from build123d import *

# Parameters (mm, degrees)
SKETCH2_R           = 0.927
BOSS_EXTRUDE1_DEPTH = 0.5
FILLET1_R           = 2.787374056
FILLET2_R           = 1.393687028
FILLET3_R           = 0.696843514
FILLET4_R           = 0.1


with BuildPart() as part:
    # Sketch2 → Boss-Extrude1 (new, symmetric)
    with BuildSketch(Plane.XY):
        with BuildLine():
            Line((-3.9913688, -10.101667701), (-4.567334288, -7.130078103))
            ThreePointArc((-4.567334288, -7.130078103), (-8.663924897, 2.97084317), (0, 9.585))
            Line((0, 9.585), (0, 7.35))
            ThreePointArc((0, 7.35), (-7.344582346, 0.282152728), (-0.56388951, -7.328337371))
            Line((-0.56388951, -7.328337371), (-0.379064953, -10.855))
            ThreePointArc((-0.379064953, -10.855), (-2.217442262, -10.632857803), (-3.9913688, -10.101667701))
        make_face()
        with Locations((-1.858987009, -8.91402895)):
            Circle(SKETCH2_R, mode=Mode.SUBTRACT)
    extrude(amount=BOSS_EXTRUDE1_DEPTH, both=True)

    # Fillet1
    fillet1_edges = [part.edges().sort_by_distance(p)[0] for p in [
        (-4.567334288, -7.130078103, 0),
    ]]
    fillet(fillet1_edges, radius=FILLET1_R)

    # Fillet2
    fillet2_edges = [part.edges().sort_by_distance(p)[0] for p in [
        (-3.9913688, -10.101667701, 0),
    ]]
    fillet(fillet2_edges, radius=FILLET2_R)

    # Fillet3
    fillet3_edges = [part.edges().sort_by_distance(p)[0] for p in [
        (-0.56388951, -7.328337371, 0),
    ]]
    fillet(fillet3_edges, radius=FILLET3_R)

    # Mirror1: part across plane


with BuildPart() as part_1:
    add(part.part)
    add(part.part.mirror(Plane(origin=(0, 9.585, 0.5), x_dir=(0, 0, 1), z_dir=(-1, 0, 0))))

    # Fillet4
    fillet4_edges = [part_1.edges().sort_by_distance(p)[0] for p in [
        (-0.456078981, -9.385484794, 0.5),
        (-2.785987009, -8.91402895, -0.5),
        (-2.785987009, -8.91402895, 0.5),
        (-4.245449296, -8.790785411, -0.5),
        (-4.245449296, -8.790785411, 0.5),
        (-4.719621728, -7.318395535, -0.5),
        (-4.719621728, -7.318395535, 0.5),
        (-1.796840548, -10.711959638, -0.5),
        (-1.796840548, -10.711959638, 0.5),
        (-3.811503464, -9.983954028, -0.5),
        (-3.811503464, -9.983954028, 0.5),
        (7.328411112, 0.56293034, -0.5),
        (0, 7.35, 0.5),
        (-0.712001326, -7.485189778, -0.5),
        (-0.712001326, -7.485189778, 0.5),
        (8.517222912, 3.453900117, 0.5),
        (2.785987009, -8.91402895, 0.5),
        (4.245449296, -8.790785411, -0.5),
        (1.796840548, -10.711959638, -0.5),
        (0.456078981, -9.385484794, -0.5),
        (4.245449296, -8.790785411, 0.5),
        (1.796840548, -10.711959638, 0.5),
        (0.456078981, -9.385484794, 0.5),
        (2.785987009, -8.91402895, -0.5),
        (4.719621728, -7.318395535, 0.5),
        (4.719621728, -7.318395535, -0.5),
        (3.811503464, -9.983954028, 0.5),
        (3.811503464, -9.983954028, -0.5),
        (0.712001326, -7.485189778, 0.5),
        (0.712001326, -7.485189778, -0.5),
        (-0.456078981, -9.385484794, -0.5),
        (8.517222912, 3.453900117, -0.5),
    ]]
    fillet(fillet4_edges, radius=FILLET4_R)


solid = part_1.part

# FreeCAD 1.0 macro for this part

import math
import FreeCAD as App
import Part
import Sketcher

V = App.Vector
Q = App.Units.Quantity


def edges_at(feature, points):
    """Names of the edges that pass closest to the given points."""
    edges = feature.Shape.Edges
    near = lambda p: min(range(len(edges)), key=lambda i: edges[i].distToShape(Part.Vertex(*p))[0])
    return sorted({f"Edge{near(p) + 1}" for p in points})

doc = App.newDocument("Part")
body = doc.addObject("PartDesign::Body", "Body")

sketch1 = body.newObject("Sketcher::SketchObject", "Sketch")
sketch1.AttachmentSupport = (doc.getObject("XY_Plane"), [""])
sketch1.MapMode = "FlatFace"
sketch1.addGeometry([
    Part.LineSegment(V(-4.567334, -7.130078, 0), V(-3.991369, -10.101668, 0)),
    Part.ArcOfCircle(Part.Circle(V(0, 0, 0), V(0, 0, 1), 10.861617), math.radians(-111.559957), math.radians(-92)),
    Part.LineSegment(V(-0.379065, -10.855, 0), V(-0.56389, -7.328337, 0)),
    Part.ArcOfCircle(Part.Circle(V(0, 0, 0), V(0, 0, 1), 7.35), math.radians(90), math.radians(265.599964)),
    Part.LineSegment(V(0, 7.35, 0), V(0, 9.585, 0)),
    Part.ArcOfCircle(Part.Circle(V(0, 0.603457, 0), V(0, 0, 1), 8.981543), math.radians(90), math.radians(239.434405)),
    Part.Circle(V(-1.858987, -8.914029, 0), V(0, 0, 1), 0.927),
], False)
sketch1.addConstraint([
    Sketcher.Constraint("Coincident", 0, 2, 1, 1),
    Sketcher.Constraint("Coincident", 1, 2, 2, 1),
    Sketcher.Constraint("Coincident", 2, 2, 3, 2),
    Sketcher.Constraint("Coincident", 3, 1, 4, 1),
    Sketcher.Constraint("Coincident", 4, 2, 5, 1),
    Sketcher.Constraint("Coincident", 5, 2, 0, 1),
    Sketcher.Constraint("Vertical", 4),
    Sketcher.Constraint("Coincident", 1, 3, -1, 1),
    Sketcher.Constraint("Coincident", 3, 3, -1, 1),
    Sketcher.Constraint("PointOnObject", 5, 3, -2),
    Sketcher.Constraint("PointOnObject", 3, 1, -2),
    Sketcher.Constraint("Angle", 2, Q("93 deg")),
    Sketcher.Constraint("Radius", 3, Q("7.35 mm")),
    Sketcher.Constraint("Diameter", 6, Q("1.854 mm")),
    Sketcher.Constraint("DistanceY", 4, 1, 4, 2, Q("2.235 mm")),
    Sketcher.Constraint("DistanceY", 1, 2, -1, 1, Q("10.855 mm")),
    Sketcher.Constraint("Radius", 1, Q("10.861617 mm")),
    Sketcher.Constraint("Radius", 5, Q("8.981543 mm")),
    Sketcher.Constraint("DistanceY", 6, 3, -1, 1, Q("8.914029 mm")),
    Sketcher.Constraint("DistanceX", 0, 2, -1, 1, Q("3.991369 mm")),
    Sketcher.Constraint("DistanceY", 5, 2, -1, 1, Q("7.130078 mm")),
    Sketcher.Constraint("DistanceX", 0, 2, 6, 3, Q("2.132382 mm")),
])
pad1 = body.newObject("PartDesign::Pad", "Pad")
pad1.Profile = sketch1
pad1.Length = 1
pad1.Midplane = True
doc.recompute()

fillet = body.newObject("PartDesign::Fillet", "Fillet")
fillet.Base = (pad1, edges_at(pad1, [(-4.567, -7.13, 0)]))
fillet.Radius = 2.787374
doc.recompute()

fillet2 = body.newObject("PartDesign::Fillet", "Fillet001")
fillet2.Base = (fillet, edges_at(fillet, [(-3.991, -10.102, 0)]))
fillet2.Radius = 1.393687
doc.recompute()

fillet3 = body.newObject("PartDesign::Fillet", "Fillet002")
fillet3.Base = (fillet2, edges_at(fillet2, [(-0.564, -7.328, 0)]))
fillet3.Radius = 0.696844
body2 = doc.addObject("PartDesign::Body", "Body001")
doc.recompute()

body2.BaseFeature = body
doc.recompute()

mirroring = doc.addObject("Part::Mirroring", "Mirroring")
mirroring.Source = body
mirroring.Base = V(0, 9.585, 0.5)
mirroring.Normal = V(-1, 0, 0)
body3 = doc.addObject("PartDesign::Body", "Body002")
body3.BaseFeature = mirroring
boolean = body2.newObject("PartDesign::Boolean", "Boolean")
boolean.Type = "Fuse"
boolean.addObjects([body3])
doc.recompute()

fillet4 = body2.newObject("PartDesign::Fillet", "Fillet003")
fillet4.Base = (boolean, edges_at(boolean, [
    (-0.456, -9.385, 0.5),
    (-2.786, -8.914, -0.5),
    (-2.786, -8.914, 0.5),
    (-4.245, -8.791, -0.5),
    (-4.245, -8.791, 0.5),
    (-4.72, -7.318, -0.5),
    (-4.72, -7.318, 0.5),
    (-1.797, -10.712, -0.5),
    (-1.797, -10.712, 0.5),
    (-3.812, -9.984, -0.5),
    (-3.812, -9.984, 0.5),
    (7.328, 0.563, -0.5),
    (0, 7.35, 0),
    (-0.712, -7.485, -0.5),
    (-0.712, -7.485, 0.5),
    (8.517, 3.454, 0.5),
    (2.786, -8.914, 0.5),
    (4.245, -8.791, -0.5),
    (1.797, -10.712, -0.5),
    (0.456, -9.385, -0.5),
    (4.245, -8.791, 0.5),
    (1.797, -10.712, 0.5),
    (0.456, -9.385, 0.5),
    (2.786, -8.914, -0.5),
    (4.72, -7.318, 0.5),
    (4.72, -7.318, -0.5),
    (3.812, -9.984, 0.5),
    (3.812, -9.984, -0.5),
    (0.712, -7.485, 0.5),
    (0.712, -7.485, -0.5),
    (-0.456, -9.385, -0.5),
    (8.517, 3.454, -0.5),
]))
fillet4.Radius = 0.1
mirroring.Visibility = False

doc.recompute()
